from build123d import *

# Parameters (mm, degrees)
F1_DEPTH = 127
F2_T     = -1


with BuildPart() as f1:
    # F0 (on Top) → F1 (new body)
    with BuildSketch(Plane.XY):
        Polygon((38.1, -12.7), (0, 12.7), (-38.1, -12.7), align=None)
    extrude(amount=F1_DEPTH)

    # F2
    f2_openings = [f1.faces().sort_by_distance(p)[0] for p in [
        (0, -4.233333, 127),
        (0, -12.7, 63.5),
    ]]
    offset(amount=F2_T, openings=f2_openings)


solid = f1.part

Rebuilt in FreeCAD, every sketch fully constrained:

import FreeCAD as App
import Part
import Sketcher
from FreeCAD import Vector
Q = App.Units.Quantity


def faces_at(feature, points):
    """Names of the faces that lie closest to the given points."""
    faces = feature.Shape.Faces
    near = lambda p: min(range(len(faces)), key=lambda i: faces[i].distToShape(Part.Vertex(*p))[0])
    return sorted({f"Face{near(p) + 1}" for p in points})

doc = App.newDocument("Part")
body = doc.addObject("PartDesign::Body", "Body")

# Sketch on XY plane
sketch1 = body.newObject("Sketcher::SketchObject", "Sketch")
sketch1.AttachmentSupport = (doc.getObject("XY_Plane"), [""])
sketch1.MapMode = "FlatFace"
sketch1.addGeometry([
    Part.LineSegment(Vector(38, -13, 0), Vector(0, 13, 0)),
    Part.LineSegment(Vector(0, 13, 0), Vector(-38, -13, 0)),
    Part.LineSegment(Vector(-38, -13, 0), Vector(38, -13, 0)),
], False)
sketch1.addConstraint([
    Sketcher.Constraint("Coincident", 0, 2, 1, 1),
    Sketcher.Constraint("Coincident", 1, 2, 2, 1),
    Sketcher.Constraint("Coincident", 2, 2, 0, 1),
    Sketcher.Constraint("Horizontal", 2),
    Sketcher.Constraint("PointOnObject", 0, 2, -2),
    Sketcher.Constraint("Equal", 0, 1),
    Sketcher.Constraint("DistanceX", 2, 1, 2, 2, Q("3 in")),
    Sketcher.Constraint("DistanceY", 1, 2, 0, 2, Q("1 in")),
    Sketcher.Constraint("DistanceY", -1, 1, 0, 2, Q("0.5 in")),
])
pad1 = body.newObject("PartDesign::Pad", "Pad")
pad1.Profile = sketch1
pad1.Length = Q("5 in")
doc.recompute()

thickness = body.newObject("PartDesign::Thickness", "Thickness")
thickness.Base = (pad1, faces_at(pad1, [(0, 0, 127), (0, -12.7, 63.5)]))
thickness.Value = 1
thickness.Reversed = True
thickness.Join = "Arc"

doc.recompute()
